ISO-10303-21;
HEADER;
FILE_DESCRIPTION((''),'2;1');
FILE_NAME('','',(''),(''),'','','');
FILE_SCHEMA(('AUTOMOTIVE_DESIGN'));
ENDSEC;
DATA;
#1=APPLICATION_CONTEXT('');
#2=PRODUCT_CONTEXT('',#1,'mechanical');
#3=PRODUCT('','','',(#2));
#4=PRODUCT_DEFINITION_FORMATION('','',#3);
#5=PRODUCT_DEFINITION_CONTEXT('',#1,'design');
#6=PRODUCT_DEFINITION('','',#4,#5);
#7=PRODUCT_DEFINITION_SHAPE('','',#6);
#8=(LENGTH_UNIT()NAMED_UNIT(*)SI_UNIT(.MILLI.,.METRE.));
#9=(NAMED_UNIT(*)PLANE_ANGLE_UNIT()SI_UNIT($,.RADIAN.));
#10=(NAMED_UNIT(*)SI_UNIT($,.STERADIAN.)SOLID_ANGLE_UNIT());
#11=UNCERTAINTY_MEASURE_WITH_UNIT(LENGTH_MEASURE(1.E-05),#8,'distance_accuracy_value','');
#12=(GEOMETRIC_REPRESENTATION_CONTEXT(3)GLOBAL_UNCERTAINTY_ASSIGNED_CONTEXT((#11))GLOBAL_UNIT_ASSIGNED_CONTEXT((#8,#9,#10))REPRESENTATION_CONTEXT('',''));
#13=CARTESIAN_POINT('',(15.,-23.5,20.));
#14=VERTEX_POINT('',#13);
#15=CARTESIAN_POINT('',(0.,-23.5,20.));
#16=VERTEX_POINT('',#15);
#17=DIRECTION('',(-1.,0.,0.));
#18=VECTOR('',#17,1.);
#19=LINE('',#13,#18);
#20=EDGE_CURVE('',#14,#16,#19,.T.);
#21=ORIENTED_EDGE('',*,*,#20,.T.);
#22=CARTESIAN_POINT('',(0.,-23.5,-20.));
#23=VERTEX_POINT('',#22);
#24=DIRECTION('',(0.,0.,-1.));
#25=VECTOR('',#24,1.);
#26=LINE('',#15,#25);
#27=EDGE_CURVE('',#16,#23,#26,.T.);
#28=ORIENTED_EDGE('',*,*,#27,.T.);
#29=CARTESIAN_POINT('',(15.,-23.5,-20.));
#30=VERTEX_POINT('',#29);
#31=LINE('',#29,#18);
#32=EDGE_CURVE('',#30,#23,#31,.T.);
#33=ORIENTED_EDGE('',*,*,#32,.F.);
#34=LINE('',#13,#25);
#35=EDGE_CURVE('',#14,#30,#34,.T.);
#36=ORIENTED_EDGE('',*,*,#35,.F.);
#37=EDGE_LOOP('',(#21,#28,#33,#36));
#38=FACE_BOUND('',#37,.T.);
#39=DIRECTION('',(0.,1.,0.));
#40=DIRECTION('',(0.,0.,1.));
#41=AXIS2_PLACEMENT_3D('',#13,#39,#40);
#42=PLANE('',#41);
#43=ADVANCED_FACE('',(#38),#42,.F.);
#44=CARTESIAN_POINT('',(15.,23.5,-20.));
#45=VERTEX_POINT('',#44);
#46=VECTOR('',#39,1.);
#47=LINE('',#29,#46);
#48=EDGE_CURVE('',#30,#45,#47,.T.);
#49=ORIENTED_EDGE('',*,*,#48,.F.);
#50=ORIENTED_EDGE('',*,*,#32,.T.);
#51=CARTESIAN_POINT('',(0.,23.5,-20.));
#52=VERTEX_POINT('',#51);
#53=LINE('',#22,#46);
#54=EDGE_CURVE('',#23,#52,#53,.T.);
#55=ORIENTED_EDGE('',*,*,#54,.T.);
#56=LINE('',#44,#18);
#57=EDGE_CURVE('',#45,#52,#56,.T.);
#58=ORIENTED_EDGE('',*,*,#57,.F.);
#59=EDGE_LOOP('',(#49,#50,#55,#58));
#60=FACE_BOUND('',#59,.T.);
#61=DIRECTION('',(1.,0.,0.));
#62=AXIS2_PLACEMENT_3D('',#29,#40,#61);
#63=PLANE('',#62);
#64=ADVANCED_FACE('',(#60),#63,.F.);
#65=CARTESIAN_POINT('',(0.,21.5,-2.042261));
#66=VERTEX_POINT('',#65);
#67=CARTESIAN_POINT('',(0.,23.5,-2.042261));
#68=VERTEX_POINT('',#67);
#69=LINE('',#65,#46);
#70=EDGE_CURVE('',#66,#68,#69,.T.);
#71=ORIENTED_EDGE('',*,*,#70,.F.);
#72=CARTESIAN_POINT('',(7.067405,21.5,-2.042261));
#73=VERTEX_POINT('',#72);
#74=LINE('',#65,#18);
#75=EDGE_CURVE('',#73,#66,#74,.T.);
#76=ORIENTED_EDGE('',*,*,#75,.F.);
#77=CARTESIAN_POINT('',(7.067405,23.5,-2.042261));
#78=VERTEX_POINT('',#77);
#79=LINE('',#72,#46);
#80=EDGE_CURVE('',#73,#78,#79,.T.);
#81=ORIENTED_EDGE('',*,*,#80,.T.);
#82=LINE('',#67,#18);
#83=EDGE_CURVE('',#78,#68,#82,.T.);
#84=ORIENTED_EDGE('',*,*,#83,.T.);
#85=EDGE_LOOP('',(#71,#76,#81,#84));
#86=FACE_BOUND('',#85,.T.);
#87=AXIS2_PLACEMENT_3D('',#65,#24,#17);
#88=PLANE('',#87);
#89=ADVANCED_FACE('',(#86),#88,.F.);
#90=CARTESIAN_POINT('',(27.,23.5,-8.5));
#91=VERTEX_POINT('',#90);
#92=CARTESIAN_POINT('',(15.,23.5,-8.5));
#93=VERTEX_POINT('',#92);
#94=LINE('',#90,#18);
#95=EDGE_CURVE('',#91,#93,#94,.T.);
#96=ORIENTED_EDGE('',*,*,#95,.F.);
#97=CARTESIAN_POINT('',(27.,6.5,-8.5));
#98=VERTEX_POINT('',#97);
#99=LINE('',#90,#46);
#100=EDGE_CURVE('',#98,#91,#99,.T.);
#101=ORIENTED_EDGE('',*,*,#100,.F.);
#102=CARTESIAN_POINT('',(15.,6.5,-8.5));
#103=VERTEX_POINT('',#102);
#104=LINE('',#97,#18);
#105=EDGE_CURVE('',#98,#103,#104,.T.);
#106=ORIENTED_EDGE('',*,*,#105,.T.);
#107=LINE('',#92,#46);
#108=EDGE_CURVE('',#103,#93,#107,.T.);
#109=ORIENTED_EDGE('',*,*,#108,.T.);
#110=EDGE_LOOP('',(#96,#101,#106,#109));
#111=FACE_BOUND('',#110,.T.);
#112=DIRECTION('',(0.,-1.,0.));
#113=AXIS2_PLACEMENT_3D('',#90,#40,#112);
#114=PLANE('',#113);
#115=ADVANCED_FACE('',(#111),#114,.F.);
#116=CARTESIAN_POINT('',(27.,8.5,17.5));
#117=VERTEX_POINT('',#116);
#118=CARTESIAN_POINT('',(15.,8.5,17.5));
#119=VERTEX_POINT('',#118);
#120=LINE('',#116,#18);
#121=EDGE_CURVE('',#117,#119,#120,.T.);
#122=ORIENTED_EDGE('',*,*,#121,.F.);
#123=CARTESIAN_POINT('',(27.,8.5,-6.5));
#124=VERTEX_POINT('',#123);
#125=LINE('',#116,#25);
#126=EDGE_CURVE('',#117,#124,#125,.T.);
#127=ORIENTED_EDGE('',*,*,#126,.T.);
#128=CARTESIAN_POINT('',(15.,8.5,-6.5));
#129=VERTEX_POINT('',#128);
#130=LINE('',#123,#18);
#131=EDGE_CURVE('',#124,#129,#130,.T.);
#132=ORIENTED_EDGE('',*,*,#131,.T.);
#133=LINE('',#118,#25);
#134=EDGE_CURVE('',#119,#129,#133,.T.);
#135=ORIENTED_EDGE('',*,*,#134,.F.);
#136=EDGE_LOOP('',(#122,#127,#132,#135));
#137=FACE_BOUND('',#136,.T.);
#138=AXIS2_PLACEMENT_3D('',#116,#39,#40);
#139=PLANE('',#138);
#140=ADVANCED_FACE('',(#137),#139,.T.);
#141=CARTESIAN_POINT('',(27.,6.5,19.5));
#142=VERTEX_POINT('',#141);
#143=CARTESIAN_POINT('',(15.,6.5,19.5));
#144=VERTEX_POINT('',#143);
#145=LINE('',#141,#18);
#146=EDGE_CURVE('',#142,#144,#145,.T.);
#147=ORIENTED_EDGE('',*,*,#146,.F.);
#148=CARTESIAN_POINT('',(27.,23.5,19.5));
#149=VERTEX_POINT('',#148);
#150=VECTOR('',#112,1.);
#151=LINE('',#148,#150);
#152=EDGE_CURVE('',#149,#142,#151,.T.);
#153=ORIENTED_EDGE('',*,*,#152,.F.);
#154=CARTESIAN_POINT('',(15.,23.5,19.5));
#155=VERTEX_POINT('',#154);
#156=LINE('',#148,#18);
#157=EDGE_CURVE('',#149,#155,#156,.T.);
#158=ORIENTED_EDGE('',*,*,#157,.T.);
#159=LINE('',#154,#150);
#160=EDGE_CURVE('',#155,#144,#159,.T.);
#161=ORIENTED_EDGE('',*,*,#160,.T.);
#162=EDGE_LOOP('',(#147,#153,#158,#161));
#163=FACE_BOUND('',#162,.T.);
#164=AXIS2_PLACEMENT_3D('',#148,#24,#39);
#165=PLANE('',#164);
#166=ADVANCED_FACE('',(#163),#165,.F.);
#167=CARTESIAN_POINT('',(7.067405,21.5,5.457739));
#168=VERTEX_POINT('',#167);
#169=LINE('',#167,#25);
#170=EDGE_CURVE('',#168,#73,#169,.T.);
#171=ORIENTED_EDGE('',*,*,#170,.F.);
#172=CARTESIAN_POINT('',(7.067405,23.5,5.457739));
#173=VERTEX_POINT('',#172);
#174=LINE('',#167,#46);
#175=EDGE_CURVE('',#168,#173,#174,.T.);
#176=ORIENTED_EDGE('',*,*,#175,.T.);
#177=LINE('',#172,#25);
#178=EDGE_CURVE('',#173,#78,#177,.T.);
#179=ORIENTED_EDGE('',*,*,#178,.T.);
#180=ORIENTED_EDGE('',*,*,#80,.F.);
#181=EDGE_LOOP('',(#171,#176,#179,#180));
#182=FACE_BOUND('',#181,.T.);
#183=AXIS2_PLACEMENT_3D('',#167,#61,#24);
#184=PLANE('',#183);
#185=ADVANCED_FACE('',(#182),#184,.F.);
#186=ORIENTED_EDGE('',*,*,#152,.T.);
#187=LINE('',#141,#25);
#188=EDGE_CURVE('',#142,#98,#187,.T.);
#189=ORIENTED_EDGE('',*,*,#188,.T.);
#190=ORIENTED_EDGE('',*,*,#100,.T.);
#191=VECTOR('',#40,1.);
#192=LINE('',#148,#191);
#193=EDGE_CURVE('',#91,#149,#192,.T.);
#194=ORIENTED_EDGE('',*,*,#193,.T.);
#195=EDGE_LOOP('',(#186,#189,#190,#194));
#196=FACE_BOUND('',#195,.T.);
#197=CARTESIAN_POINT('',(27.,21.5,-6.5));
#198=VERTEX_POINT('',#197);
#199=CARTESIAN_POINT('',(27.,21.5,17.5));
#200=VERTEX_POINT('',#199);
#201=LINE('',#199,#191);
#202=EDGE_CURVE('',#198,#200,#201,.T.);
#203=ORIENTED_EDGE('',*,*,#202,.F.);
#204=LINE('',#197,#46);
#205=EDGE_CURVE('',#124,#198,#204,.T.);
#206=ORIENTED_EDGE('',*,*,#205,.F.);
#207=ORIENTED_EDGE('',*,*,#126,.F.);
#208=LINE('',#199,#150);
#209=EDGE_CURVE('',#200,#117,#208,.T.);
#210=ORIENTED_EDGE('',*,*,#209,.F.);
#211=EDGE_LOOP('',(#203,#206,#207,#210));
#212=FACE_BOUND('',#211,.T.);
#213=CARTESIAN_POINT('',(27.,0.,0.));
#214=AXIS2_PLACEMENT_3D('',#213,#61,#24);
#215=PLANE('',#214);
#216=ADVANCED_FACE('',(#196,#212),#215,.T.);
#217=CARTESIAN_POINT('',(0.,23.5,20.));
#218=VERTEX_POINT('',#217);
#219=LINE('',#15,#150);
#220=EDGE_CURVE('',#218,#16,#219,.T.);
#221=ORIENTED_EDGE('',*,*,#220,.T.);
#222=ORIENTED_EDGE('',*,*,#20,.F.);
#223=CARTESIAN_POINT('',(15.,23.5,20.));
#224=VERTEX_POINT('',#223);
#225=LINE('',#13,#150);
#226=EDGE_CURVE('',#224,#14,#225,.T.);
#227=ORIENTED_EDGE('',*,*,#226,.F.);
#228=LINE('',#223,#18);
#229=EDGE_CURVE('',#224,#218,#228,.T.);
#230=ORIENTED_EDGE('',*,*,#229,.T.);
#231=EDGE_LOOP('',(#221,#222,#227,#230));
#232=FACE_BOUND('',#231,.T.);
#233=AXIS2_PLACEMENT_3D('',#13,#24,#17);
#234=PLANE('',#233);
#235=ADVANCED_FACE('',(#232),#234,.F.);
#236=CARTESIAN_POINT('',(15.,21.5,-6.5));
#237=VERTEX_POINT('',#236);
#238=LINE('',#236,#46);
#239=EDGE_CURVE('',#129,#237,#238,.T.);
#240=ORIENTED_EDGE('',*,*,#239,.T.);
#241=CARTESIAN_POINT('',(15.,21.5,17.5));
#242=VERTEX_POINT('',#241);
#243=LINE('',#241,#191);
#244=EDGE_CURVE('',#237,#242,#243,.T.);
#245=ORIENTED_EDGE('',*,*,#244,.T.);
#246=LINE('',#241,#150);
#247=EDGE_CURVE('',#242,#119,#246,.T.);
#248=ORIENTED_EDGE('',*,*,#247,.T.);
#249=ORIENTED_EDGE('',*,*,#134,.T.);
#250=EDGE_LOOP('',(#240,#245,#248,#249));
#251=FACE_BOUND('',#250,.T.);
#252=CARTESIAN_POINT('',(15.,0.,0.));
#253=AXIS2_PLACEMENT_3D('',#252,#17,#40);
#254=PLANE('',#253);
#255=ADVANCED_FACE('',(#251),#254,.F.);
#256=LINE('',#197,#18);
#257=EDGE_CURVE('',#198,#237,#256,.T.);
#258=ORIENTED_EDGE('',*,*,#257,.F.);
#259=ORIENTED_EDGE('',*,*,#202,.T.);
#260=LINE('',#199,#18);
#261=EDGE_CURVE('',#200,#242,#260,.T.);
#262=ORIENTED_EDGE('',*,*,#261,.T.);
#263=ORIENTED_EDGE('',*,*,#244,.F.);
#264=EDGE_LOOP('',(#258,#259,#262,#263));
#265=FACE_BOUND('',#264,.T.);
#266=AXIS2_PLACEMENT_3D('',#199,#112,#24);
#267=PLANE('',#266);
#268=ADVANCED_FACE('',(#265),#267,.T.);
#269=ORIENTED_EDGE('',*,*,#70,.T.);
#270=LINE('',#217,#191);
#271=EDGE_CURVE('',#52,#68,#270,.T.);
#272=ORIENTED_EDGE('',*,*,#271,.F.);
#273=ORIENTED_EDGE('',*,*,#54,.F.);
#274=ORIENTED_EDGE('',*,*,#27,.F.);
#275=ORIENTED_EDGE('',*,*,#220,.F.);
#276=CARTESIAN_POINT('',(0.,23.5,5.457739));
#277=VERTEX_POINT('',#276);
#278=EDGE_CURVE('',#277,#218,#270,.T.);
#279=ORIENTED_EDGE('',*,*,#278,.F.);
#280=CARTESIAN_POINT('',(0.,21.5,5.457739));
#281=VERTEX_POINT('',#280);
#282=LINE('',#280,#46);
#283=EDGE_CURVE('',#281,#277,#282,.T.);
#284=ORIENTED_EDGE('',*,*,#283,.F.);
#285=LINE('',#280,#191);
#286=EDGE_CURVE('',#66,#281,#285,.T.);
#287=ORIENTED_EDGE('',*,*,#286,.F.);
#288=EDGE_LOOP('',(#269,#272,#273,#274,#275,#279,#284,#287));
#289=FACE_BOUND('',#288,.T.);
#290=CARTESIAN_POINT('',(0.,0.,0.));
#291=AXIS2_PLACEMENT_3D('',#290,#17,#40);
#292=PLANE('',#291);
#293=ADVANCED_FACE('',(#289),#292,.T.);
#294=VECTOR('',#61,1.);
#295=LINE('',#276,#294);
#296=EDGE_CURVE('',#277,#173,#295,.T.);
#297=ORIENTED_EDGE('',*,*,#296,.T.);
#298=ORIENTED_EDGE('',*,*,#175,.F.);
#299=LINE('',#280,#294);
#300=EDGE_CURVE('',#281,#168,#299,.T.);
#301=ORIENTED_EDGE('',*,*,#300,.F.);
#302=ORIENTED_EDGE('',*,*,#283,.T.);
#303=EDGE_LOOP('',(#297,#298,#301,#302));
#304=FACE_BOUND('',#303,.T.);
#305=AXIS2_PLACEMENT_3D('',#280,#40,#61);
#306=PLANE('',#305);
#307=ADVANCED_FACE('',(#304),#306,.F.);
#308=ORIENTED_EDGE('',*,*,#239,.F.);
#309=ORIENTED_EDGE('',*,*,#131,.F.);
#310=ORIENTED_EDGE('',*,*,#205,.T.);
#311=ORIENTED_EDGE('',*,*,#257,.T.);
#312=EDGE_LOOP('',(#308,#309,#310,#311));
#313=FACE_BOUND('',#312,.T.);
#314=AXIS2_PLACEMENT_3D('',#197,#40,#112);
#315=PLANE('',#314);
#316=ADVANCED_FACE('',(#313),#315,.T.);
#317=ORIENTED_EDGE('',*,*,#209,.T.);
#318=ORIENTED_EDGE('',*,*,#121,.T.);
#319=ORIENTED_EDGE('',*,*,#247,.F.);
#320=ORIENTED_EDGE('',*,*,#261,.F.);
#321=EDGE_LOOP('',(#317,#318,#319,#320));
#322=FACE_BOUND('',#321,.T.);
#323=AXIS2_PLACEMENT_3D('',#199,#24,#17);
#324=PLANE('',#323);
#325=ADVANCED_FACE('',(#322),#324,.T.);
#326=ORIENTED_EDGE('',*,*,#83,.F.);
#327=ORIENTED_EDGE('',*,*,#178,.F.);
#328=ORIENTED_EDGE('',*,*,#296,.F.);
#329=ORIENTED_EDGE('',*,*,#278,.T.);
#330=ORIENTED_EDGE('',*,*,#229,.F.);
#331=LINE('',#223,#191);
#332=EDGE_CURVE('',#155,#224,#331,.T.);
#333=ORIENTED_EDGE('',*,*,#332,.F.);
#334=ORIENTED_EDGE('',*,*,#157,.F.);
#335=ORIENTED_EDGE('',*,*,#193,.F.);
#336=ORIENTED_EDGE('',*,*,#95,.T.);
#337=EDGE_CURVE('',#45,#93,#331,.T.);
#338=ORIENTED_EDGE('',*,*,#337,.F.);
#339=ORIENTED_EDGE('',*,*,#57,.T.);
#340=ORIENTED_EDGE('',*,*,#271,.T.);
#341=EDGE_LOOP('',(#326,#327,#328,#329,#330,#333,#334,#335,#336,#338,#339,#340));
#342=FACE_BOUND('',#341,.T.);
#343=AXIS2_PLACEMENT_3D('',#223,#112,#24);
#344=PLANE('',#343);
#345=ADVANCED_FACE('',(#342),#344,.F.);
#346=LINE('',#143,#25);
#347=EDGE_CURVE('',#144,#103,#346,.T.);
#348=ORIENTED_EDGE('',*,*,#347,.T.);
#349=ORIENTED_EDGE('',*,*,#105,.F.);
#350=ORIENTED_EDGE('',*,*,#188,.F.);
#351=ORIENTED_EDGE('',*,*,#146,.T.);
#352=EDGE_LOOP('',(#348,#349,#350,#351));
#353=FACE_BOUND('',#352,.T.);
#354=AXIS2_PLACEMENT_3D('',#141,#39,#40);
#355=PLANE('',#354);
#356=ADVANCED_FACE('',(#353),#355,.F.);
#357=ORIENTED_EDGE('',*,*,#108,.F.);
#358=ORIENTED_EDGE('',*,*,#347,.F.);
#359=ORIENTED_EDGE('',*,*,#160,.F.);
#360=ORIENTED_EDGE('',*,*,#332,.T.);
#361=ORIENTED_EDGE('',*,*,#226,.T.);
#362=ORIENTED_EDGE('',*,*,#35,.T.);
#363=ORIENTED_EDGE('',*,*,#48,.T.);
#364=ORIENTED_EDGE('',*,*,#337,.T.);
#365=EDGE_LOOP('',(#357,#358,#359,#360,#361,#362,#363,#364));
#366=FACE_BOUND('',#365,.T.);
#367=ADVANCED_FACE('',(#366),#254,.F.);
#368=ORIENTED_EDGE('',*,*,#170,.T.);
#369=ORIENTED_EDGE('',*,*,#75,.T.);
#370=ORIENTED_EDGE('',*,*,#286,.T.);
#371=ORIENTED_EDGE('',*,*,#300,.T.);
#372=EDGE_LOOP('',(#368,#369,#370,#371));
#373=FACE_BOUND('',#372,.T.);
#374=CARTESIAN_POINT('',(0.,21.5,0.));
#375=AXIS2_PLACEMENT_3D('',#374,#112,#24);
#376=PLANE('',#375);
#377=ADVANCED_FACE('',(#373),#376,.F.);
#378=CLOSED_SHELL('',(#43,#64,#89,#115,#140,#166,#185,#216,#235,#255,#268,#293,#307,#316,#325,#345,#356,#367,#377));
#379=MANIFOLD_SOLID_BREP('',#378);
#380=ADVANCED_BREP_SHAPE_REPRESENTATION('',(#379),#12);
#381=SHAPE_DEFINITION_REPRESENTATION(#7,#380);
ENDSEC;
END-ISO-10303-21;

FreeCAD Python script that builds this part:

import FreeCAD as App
import Part
import Sketcher
from FreeCAD import Vector

doc = App.newDocument("Part")
params = doc.addObject("Spreadsheet::Sheet", "Params")
for row, (alias, value) in enumerate([
    ("sketch1_width", "47 mm"),
    ("sketch1_height", "40 mm"),
    ("pad1_length", "15 mm"),
    ("sketch2_width", "17 mm"),
    ("sketch2_width2", "13 mm"),
    ("sketch2_height", "28 mm"),
    ("sketch2_height2", "24 mm"),
    ("pad2_length", "12 mm"),
    ("sketch3_height", "7.5 mm"),
    ("pocket1_length", "2 mm"),
], start=1):
    params.set(f"A{row}", alias)
    params.set(f"B{row}", "=" + value)
    params.setAlias(f"B{row}", alias)

body = doc.addObject("PartDesign::Body", "Body")

# Sketch on YZ plane
sketch1 = body.newObject("Sketcher::SketchObject", "Sketch")
sketch1.AttachmentSupport = (doc.getObject("YZ_Plane"), [""])
sketch1.MapMode = "FlatFace"
sketch1.addGeometry(Part.LineSegment(Vector(24, 20, 0), Vector(-24, 20, 0)), False)
sketch1.addGeometry(Part.LineSegment(Vector(-24, 20, 0), Vector(-24, -20, 0)), False)
sketch1.addGeometry(Part.LineSegment(Vector(-24, -20, 0), Vector(24, -20, 0)), False)
sketch1.addGeometry(Part.LineSegment(Vector(24, -20, 0), Vector(24, 20, 0)), False)
sketch1.addConstraint(Sketcher.Constraint("Coincident", 0, 2, 1, 1))
sketch1.addConstraint(Sketcher.Constraint("Coincident", 1, 2, 2, 1))
sketch1.addConstraint(Sketcher.Constraint("Coincident", 2, 2, 3, 1))
sketch1.addConstraint(Sketcher.Constraint("Coincident", 3, 2, 0, 1))
sketch1.addConstraint(Sketcher.Constraint("Horizontal", 0))
sketch1.addConstraint(Sketcher.Constraint("Vertical", 1))
sketch1.addConstraint(Sketcher.Constraint("Horizontal", 2))
sketch1.addConstraint(Sketcher.Constraint("Vertical", 3))
sketch1.addConstraint(Sketcher.Constraint("Symmetric", 0, 2, 2, 2, -1, 1))
sketch1.addConstraint(Sketcher.Constraint("DistanceX", 0, 2, 0, 1, 47.0))
sketch1.addConstraint(Sketcher.Constraint("DistanceY", 1, 2, 1, 1, 40.0))
sketch1.setExpression("Constraints[9]", "Params.sketch1_width")
sketch1.setExpression("Constraints[10]", "Params.sketch1_height")
pad1 = body.newObject("PartDesign::Pad", "Pad")
pad1.Profile = sketch1
pad1.setExpression("Length", "Params.pad1_length")

# Sketch on YZ plane
sketch2 = body.newObject("Sketcher::SketchObject", "Sketch001")
sketch2.AttachmentSupport = (doc.getObject("YZ_Plane"), [""])
sketch2.MapMode = "FlatFace"
sketch2.AttachmentOffset = App.Placement(Vector(0, 0, 15), App.Rotation())
sketch2.addGeometry(Part.LineSegment(Vector(24, 20, 0), Vector(6, 20, 0)), False)
sketch2.addGeometry(Part.LineSegment(Vector(6, 20, 0), Vector(6, -8, 0)), False)
sketch2.addGeometry(Part.LineSegment(Vector(6, -8, 0), Vector(24, -8, 0)), False)
sketch2.addGeometry(Part.LineSegment(Vector(24, -8, 0), Vector(24, 20, 0)), False)
sketch2.addGeometry(Part.LineSegment(Vector(8, -6, 0), Vector(8, 18, 0)), False)
sketch2.addGeometry(Part.LineSegment(Vector(8, 18, 0), Vector(22, 18, 0)), False)
sketch2.addGeometry(Part.LineSegment(Vector(22, 18, 0), Vector(22, -6, 0)), False)
sketch2.addGeometry(Part.LineSegment(Vector(22, -6, 0), Vector(8, -6, 0)), False)
sketch2.addConstraint(Sketcher.Constraint("Coincident", 0, 2, 1, 1))
sketch2.addConstraint(Sketcher.Constraint("Coincident", 1, 2, 2, 1))
sketch2.addConstraint(Sketcher.Constraint("Coincident", 2, 2, 3, 1))
sketch2.addConstraint(Sketcher.Constraint("Coincident", 3, 2, 0, 1))
sketch2.addConstraint(Sketcher.Constraint("Coincident", 4, 2, 5, 1))
sketch2.addConstraint(Sketcher.Constraint("Coincident", 5, 2, 6, 1))
sketch2.addConstraint(Sketcher.Constraint("Coincident", 6, 2, 7, 1))
sketch2.addConstraint(Sketcher.Constraint("Coincident", 7, 2, 4, 1))
sketch2.addConstraint(Sketcher.Constraint("Horizontal", 0))
sketch2.addConstraint(Sketcher.Constraint("Vertical", 1))
sketch2.addConstraint(Sketcher.Constraint("Horizontal", 2))
sketch2.addConstraint(Sketcher.Constraint("Vertical", 3))
sketch2.addConstraint(Sketcher.Constraint("Vertical", 4))
sketch2.addConstraint(Sketcher.Constraint("Horizontal", 5))
sketch2.addConstraint(Sketcher.Constraint("Vertical", 6))
sketch2.addConstraint(Sketcher.Constraint("Horizontal", 7))
sketch2.addConstraint(Sketcher.Constraint("DistanceX", 0, 2, 0, 1, 17.0))
sketch2.addConstraint(Sketcher.Constraint("DistanceX", 5, 1, 5, 2, 13.0))
sketch2.addConstraint(Sketcher.Constraint("DistanceY", 1, 2, 1, 1, 28.0))
sketch2.addConstraint(Sketcher.Constraint("DistanceY", 4, 1, 4, 2, 24.0))
sketch2.addConstraint(Sketcher.Constraint("DistanceX", 0, 2, 4, 2, 2.0))
sketch2.addConstraint(Sketcher.Constraint("DistanceY", 4, 2, 0, 2, 2.0))
sketch2.addConstraint(Sketcher.Constraint("DistanceX", -1, 1, 0, 2, 6.5))
sketch2.addConstraint(Sketcher.Constraint("DistanceY", -1, 1, 0, 2, 19.5))
sketch2.setExpression("Constraints[16]", "Params.sketch2_width")
sketch2.setExpression("Constraints[17]", "Params.sketch2_width2")
sketch2.setExpression("Constraints[18]", "Params.sketch2_height")
sketch2.setExpression("Constraints[19]", "Params.sketch2_height2")
pad2 = body.newObject("PartDesign::Pad", "Pad001")
pad2.Profile = sketch2
pad2.setExpression("Length", "Params.pad2_length")

# Sketch on XZ plane
sketch3 = body.newObject("Sketcher::SketchObject", "Sketch002")
sketch3.AttachmentSupport = (doc.getObject("XZ_Plane"), [""])
sketch3.MapMode = "FlatFace"
sketch3.AttachmentOffset = App.Placement(Vector(0, 0, -23.5), App.Rotation())
sketch3.addGeometry(Part.LineSegment(Vector(0, -2, 0), Vector(0, 5, 0)), False)
sketch3.addGeometry(Part.LineSegment(Vector(0, 5, 0), Vector(7, 5, 0)), False)
sketch3.addGeometry(Part.LineSegment(Vector(7, 5, 0), Vector(7, -2, 0)), False)
sketch3.addGeometry(Part.LineSegment(Vector(7, -2, 0), Vector(0, -2, 0)), False)
sketch3.addConstraint(Sketcher.Constraint("Coincident", 0, 2, 1, 1))
sketch3.addConstraint(Sketcher.Constraint("Coincident", 1, 2, 2, 1))
sketch3.addConstraint(Sketcher.Constraint("Coincident", 2, 2, 3, 1))
sketch3.addConstraint(Sketcher.Constraint("Coincident", 3, 2, 0, 1))
sketch3.addConstraint(Sketcher.Constraint("Vertical", 0))
sketch3.addConstraint(Sketcher.Constraint("Horizontal", 1))
sketch3.addConstraint(Sketcher.Constraint("Vertical", 2))
sketch3.addConstraint(Sketcher.Constraint("Horizontal", 3))
sketch3.addConstraint(Sketcher.Constraint("PointOnObject", 0, 2, -2))
sketch3.addConstraint(Sketcher.Constraint("DistanceY", 0, 1, 0, 2, 7.5))
sketch3.addConstraint(Sketcher.Constraint("DistanceX", 1, 1, 1, 2, 7.067405))
sketch3.addConstraint(Sketcher.Constraint("DistanceY", -1, 1, 0, 2, 5.457739))
sketch3.setExpression("Constraints[9]", "Params.sketch3_height")
pocket1 = body.newObject("PartDesign::Pocket", "Pocket")
pocket1.Profile = sketch3
pocket1.setExpression("Length", "Params.pocket1_length")
pocket1.Reversed = True

doc.recompute()
